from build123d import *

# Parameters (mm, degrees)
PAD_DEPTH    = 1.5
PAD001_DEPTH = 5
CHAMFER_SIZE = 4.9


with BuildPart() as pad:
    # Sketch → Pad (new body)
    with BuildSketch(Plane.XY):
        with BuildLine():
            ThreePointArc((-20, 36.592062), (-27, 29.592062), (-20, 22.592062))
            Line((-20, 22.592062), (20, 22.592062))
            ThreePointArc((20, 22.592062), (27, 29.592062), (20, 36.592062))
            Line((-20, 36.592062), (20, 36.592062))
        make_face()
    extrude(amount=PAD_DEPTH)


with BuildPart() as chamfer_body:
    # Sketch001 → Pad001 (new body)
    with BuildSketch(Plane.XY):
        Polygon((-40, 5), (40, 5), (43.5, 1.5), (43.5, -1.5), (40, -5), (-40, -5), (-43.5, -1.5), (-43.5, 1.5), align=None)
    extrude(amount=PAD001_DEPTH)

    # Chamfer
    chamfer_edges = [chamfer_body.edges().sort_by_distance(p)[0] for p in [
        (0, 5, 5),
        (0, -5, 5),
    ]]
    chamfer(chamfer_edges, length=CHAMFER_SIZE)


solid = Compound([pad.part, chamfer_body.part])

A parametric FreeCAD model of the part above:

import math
import FreeCAD as App
import Part
import Sketcher
from FreeCAD import Vector


def edges_at(feature, points):
    """Names of the edges that pass closest to the given points."""
    edges = feature.Shape.Edges
    near = lambda p: min(range(len(edges)), key=lambda i: edges[i].distToShape(Part.Vertex(*p))[0])
    return sorted({f"Edge{near(p) + 1}" for p in points})

doc = App.newDocument("Part")
body = doc.addObject("PartDesign::Body", "Body")

sketch1 = body.newObject("Sketcher::SketchObject", "Sketch")
sketch1.AttachmentSupport = (doc.getObject("XY_Plane"), [""])
sketch1.MapMode = "FlatFace"
sketch1.addGeometry(Part.ArcOfCircle(Part.Circle(Vector(-20, 30, 0), Vector(0, 0, 1), 7), math.radians(90), math.radians(270)), False)
sketch1.addGeometry(Part.LineSegment(Vector(-20, 23, 0), Vector(20, 23, 0)), False)
sketch1.addGeometry(Part.ArcOfCircle(Part.Circle(Vector(20, 30, 0), Vector(0, 0, 1), 7), math.radians(-90), math.radians(90)), False)
sketch1.addGeometry(Part.LineSegment(Vector(20, 37, 0), Vector(-20, 37, 0)), False)
sketch1.addConstraint(Sketcher.Constraint("Tangent", 0, 2, 1, 1))
sketch1.addConstraint(Sketcher.Constraint("Tangent", 1, 2, 2, 1))
sketch1.addConstraint(Sketcher.Constraint("Tangent", 2, 2, 3, 1))
sketch1.addConstraint(Sketcher.Constraint("Tangent", 3, 2, 0, 1))
sketch1.addConstraint(Sketcher.Constraint("Horizontal", 1))
sketch1.addConstraint(Sketcher.Constraint("Horizontal", 3))
sketch1.addConstraint(Sketcher.Constraint("Radius", 0, 7.0))
sketch1.addConstraint(Sketcher.Constraint("DistanceX", 1, 1, 1, 2, 40.0))
sketch1.addConstraint(Sketcher.Constraint("DistanceX", 0, 3, -1, 1, 20.0))
sketch1.addConstraint(Sketcher.Constraint("DistanceY", -1, 1, 0, 3, 29.592062))
pad1 = body.newObject("PartDesign::Pad", "Pad")
pad1.Profile = sketch1
pad1.Length = 1.5
body2 = doc.addObject("PartDesign::Body", "Body001")

sketch2 = body2.newObject("Sketcher::SketchObject", "Sketch001")
sketch2.AttachmentSupport = (doc.getObject("XY_Plane001"), [""])
sketch2.MapMode = "FlatFace"
sketch2.addGeometry(Part.LineSegment(Vector(40, 5, 0), Vector(-40, 5, 0)), False)
sketch2.addGeometry(Part.LineSegment(Vector(-40, 5, 0), Vector(-43.5, 1.5, 0)), False)
sketch2.addGeometry(Part.LineSegment(Vector(-43.5, 1.5, 0), Vector(-43.5, -1.5, 0)), False)
sketch2.addGeometry(Part.LineSegment(Vector(-43.5, -1.5, 0), Vector(-40, -5, 0)), False)
sketch2.addGeometry(Part.LineSegment(Vector(-40, -5, 0), Vector(40, -5, 0)), False)
sketch2.addGeometry(Part.LineSegment(Vector(40, -5, 0), Vector(43.5, -1.5, 0)), False)
sketch2.addGeometry(Part.LineSegment(Vector(43.5, -1.5, 0), Vector(43.5, 1.5, 0)), False)
sketch2.addGeometry(Part.LineSegment(Vector(43.5, 1.5, 0), Vector(40, 5, 0)), False)
sketch2.addConstraint(Sketcher.Constraint("Coincident", 0, 2, 1, 1))
sketch2.addConstraint(Sketcher.Constraint("Coincident", 1, 2, 2, 1))
sketch2.addConstraint(Sketcher.Constraint("Coincident", 2, 2, 3, 1))
sketch2.addConstraint(Sketcher.Constraint("Coincident", 3, 2, 4, 1))
sketch2.addConstraint(Sketcher.Constraint("Coincident", 4, 2, 5, 1))
sketch2.addConstraint(Sketcher.Constraint("Coincident", 5, 2, 6, 1))
sketch2.addConstraint(Sketcher.Constraint("Coincident", 6, 2, 7, 1))
sketch2.addConstraint(Sketcher.Constraint("Coincident", 7, 2, 0, 1))
sketch2.addConstraint(Sketcher.Constraint("Horizontal", 0))
sketch2.addConstraint(Sketcher.Constraint("Vertical", 2))
sketch2.addConstraint(Sketcher.Constraint("Horizontal", 4))
sketch2.addConstraint(Sketcher.Constraint("Vertical", 6))
sketch2.addConstraint(Sketcher.Constraint("Symmetric", 0, 2, 4, 2, -1, 1))
sketch2.addConstraint(Sketcher.Constraint("Symmetric", 1, 2, 5, 2, -1, 1))
sketch2.addConstraint(Sketcher.Constraint("Perpendicular", 1, 3))
sketch2.addConstraint(Sketcher.Constraint("Perpendicular", 5, 7))
sketch2.addConstraint(Sketcher.Constraint("Horizontal", 2, 2, 5, 2))
sketch2.addConstraint(Sketcher.Constraint("Horizontal", 1, 2, 6, 2))
sketch2.addConstraint(Sketcher.Constraint("Vertical", 0, 2, 3, 2))
sketch2.addConstraint(Sketcher.Constraint("DistanceX", 0, 2, 0, 1, 80.0))
sketch2.addConstraint(Sketcher.Constraint("DistanceY", 2, 2, 2, 1, 3.0))
sketch2.addConstraint(Sketcher.Constraint("DistanceY", -1, 1, 0, 2, 5.0))
pad2 = body2.newObject("PartDesign::Pad", "Pad001")
pad2.Profile = sketch2
pad2.Length = 5
doc.recompute()

chamfer = body2.newObject("PartDesign::Chamfer", "Chamfer")
chamfer.Base = (pad2, edges_at(pad2, [(0, 5, 5), (0, -5, 5)]))
chamfer.Size = 4.9

doc.recompute()
